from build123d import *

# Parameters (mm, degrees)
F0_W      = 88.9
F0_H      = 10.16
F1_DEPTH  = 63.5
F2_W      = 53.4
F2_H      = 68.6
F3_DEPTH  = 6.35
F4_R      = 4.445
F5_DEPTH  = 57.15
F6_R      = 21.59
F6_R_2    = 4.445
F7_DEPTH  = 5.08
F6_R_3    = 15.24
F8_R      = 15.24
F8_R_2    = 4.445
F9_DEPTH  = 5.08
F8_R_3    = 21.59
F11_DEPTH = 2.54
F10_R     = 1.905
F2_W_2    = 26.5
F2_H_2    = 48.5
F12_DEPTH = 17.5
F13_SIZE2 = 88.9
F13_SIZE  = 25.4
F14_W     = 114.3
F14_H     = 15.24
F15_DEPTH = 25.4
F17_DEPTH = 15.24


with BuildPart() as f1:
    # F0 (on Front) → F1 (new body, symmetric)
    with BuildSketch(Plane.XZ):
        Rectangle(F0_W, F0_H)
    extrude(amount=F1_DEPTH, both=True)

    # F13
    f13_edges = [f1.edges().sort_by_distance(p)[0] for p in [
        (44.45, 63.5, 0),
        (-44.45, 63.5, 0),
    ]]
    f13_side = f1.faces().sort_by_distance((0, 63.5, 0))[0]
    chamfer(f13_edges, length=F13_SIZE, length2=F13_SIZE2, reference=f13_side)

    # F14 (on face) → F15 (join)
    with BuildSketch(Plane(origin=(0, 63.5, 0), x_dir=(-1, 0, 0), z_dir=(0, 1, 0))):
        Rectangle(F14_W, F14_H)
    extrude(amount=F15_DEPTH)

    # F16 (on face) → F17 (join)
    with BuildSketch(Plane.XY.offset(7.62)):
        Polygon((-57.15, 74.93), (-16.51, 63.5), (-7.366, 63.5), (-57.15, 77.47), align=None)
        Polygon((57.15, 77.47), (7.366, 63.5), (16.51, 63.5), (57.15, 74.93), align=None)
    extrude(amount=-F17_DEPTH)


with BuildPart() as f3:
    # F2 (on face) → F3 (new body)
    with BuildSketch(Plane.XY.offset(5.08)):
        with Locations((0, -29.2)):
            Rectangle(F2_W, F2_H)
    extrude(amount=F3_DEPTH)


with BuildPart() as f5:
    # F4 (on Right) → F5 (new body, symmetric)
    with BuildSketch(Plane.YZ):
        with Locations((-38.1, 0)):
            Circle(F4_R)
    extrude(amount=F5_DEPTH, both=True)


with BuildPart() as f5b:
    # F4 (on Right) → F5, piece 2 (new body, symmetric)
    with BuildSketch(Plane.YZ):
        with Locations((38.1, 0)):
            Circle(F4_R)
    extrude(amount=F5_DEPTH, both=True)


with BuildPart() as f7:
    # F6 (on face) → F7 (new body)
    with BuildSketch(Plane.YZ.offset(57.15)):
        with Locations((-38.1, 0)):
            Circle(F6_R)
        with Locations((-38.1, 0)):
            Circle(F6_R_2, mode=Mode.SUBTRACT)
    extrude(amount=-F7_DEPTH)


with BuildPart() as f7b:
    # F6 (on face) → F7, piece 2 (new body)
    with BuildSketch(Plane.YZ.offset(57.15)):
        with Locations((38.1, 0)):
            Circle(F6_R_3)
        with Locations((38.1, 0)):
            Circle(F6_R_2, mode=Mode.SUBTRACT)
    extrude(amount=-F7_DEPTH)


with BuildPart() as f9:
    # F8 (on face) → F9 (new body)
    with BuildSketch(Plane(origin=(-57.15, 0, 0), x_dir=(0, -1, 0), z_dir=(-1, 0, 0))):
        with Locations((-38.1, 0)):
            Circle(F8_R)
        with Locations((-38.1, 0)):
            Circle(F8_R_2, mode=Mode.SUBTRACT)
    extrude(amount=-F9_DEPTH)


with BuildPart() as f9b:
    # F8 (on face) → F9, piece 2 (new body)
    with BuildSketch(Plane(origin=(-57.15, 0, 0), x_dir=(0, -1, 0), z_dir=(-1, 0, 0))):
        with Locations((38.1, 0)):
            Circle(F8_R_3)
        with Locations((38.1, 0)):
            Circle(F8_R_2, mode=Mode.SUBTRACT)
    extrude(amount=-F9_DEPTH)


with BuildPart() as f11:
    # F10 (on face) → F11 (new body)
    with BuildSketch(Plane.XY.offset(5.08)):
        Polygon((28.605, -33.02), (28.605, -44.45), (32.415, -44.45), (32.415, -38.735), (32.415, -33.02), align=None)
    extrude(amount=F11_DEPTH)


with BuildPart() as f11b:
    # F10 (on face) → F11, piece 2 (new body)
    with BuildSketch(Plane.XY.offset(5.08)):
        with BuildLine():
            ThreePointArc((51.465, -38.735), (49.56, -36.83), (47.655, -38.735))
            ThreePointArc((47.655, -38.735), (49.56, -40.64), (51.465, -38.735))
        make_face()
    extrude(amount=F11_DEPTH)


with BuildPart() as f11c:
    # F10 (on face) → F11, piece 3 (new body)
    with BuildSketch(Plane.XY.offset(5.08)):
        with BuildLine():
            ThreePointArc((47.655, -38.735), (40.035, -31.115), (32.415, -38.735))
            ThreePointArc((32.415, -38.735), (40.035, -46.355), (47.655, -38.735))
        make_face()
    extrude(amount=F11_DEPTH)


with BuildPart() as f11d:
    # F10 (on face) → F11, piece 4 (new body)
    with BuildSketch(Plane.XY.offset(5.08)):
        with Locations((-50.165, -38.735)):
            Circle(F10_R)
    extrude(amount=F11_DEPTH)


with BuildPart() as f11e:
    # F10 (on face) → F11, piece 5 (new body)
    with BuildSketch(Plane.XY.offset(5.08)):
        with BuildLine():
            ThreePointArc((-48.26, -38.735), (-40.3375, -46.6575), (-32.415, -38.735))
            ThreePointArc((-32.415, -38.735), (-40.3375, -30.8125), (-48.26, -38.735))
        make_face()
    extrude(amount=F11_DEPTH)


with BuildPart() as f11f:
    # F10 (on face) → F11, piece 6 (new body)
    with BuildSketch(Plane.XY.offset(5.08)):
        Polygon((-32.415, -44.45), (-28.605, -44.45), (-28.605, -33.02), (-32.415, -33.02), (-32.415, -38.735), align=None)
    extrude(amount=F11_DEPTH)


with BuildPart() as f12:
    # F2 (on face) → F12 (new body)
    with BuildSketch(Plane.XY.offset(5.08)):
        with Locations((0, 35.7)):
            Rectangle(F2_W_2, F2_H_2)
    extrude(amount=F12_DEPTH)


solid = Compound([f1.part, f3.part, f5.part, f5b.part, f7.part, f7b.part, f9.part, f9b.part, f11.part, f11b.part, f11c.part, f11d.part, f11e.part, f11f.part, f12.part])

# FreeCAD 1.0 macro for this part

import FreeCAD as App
import Part
import Sketcher
from FreeCAD import Vector
Q = App.Units.Quantity


def edges_at(feature, points):
    """Names of the edges that pass closest to the given points."""
    edges = feature.Shape.Edges
    near = lambda p: min(range(len(edges)), key=lambda i: edges[i].distToShape(Part.Vertex(*p))[0])
    return sorted({f"Edge{near(p) + 1}" for p in points})

doc = App.newDocument("Part")
body = doc.addObject("PartDesign::Body", "Body")

sketch1 = body.newObject("Sketcher::SketchObject", "Sketch")
sketch1.AttachmentSupport = (doc.getObject("XZ_Plane"), [""])
sketch1.MapMode = "FlatFace"
sketch1.addGeometry([
    Part.LineSegment(Vector(-44.45, 5.08, 0), Vector(-44.45, -5.08, 0)),
    Part.LineSegment(Vector(-44.45, -5.08, 0), Vector(44.45, -5.08, 0)),
    Part.LineSegment(Vector(44.45, -5.08, 0), Vector(44.45, 5.08, 0)),
    Part.LineSegment(Vector(44.45, 5.08, 0), Vector(-44.45, 5.08, 0)),
], False)
sketch1.addConstraint([
    Sketcher.Constraint("Coincident", 0, 2, 1, 1),
    Sketcher.Constraint("Coincident", 1, 2, 2, 1),
    Sketcher.Constraint("Coincident", 2, 2, 3, 1),
    Sketcher.Constraint("Coincident", 3, 2, 0, 1),
    Sketcher.Constraint("Vertical", 0),
    Sketcher.Constraint("Horizontal", 1),
    Sketcher.Constraint("Vertical", 2),
    Sketcher.Constraint("Horizontal", 3),
    Sketcher.Constraint("Symmetric", 0, 2, 2, 2, -1, 1),
    Sketcher.Constraint("DistanceX", 1, 1, 1, 2, Q("3.5 in")),
    Sketcher.Constraint("DistanceY", 0, 2, 0, 1, Q("0.4 in")),
])
pad1 = body.newObject("PartDesign::Pad", "Pad")
pad1.Profile = sketch1
pad1.Length = Q("5 in")
pad1.Midplane = True
doc.recompute()

chamfer = body.newObject("PartDesign::Chamfer", "Chamfer")
chamfer.Base = (pad1, edges_at(pad1, [(44.45, 63.5, 0), (-44.45, 63.5, 0)]))
chamfer.ChamferType = "Two distances"
chamfer.Size = Q("1 in")
chamfer.Size2 = Q("3.5 in")
chamfer.FlipDirection = True

sketch2 = body.newObject("Sketcher::SketchObject", "Sketch001")
sketch2.AttachmentSupport = (doc.getObject("XZ_Plane"), [""])
sketch2.MapMode = "FlatFace"
sketch2.AttachmentOffset = App.Placement(Vector(0, 0, -2.5 * 25.4), App.Rotation())
sketch2.addGeometry([
    Part.LineSegment(Vector(57.15, 7.62, 0), Vector(57.15, -7.62, 0)),
    Part.LineSegment(Vector(57.15, -7.62, 0), Vector(-57.15, -7.62, 0)),
    Part.LineSegment(Vector(-57.15, -7.62, 0), Vector(-57.15, 7.62, 0)),
    Part.LineSegment(Vector(-57.15, 7.62, 0), Vector(57.15, 7.62, 0)),
], False)
sketch2.addConstraint([
    Sketcher.Constraint("Coincident", 0, 2, 1, 1),
    Sketcher.Constraint("Coincident", 1, 2, 2, 1),
    Sketcher.Constraint("Coincident", 2, 2, 3, 1),
    Sketcher.Constraint("Coincident", 3, 2, 0, 1),
    Sketcher.Constraint("Vertical", 0),
    Sketcher.Constraint("Horizontal", 1),
    Sketcher.Constraint("Vertical", 2),
    Sketcher.Constraint("Horizontal", 3),
    Sketcher.Constraint("Symmetric", 0, 2, 2, 2, -1, 1),
    Sketcher.Constraint("DistanceX", 1, 2, 1, 1, Q("4.5 in")),
    Sketcher.Constraint("DistanceY", 0, 2, 0, 1, Q("0.6 in")),
])
pad2 = body.newObject("PartDesign::Pad", "Pad001")
pad2.Profile = sketch2
pad2.Length = Q("1 in")
pad2.Reversed = True

sketch3 = body.newObject("Sketcher::SketchObject", "Sketch002")
sketch3.AttachmentSupport = (doc.getObject("XY_Plane"), [""])
sketch3.MapMode = "FlatFace"
sketch3.AttachmentOffset = App.Placement(Vector(0, 0, 0.3 * 25.4), App.Rotation())
sketch3.addGeometry([
    Part.LineSegment(Vector(-57.15, 74.93, 0), Vector(-16.51, 63.5, 0)),
    Part.LineSegment(Vector(-16.51, 63.5, 0), Vector(-7.366, 63.5, 0)),
    Part.LineSegment(Vector(-7.366, 63.5, 0), Vector(-57.15, 77.47, 0)),
    Part.LineSegment(Vector(-57.15, 77.47, 0), Vector(-57.15, 74.93, 0)),
    Part.LineSegment(Vector(57.15, 77.47, 0), Vector(7.366, 63.5, 0)),
    Part.LineSegment(Vector(7.366, 63.5, 0), Vector(16.51, 63.5, 0)),
    Part.LineSegment(Vector(16.51, 63.5, 0), Vector(57.15, 74.93, 0)),
    Part.LineSegment(Vector(57.15, 74.93, 0), Vector(57.15, 77.47, 0)),
], False)
sketch3.addConstraint([
    Sketcher.Constraint("Coincident", 0, 2, 1, 1),
    Sketcher.Constraint("Coincident", 1, 2, 2, 1),
    Sketcher.Constraint("Coincident", 2, 2, 3, 1),
    Sketcher.Constraint("Coincident", 3, 2, 0, 1),
    Sketcher.Constraint("Coincident", 4, 2, 5, 1),
    Sketcher.Constraint("Coincident", 5, 2, 6, 1),
    Sketcher.Constraint("Coincident", 6, 2, 7, 1),
    Sketcher.Constraint("Coincident", 7, 2, 4, 1),
    Sketcher.Constraint("Horizontal", 1),
    Sketcher.Constraint("Vertical", 3),
    Sketcher.Constraint("Horizontal", 5),
    Sketcher.Constraint("Vertical", 7),
    Sketcher.Constraint("Symmetric", 1, 2, 4, 2, -2),
    Sketcher.Constraint("Symmetric", 3, 2, 6, 2, -2),
    Sketcher.Constraint("Horizontal", 2, 2, 7, 2),
    Sketcher.Constraint("Equal", 1, 5),
    Sketcher.Constraint("DistanceY", 3, 2, 3, 1, Q("0.1 in")),
    Sketcher.Constraint("DistanceX", 1, 1, 1, 2, Q("0.36 in")),
    Sketcher.Constraint("DistanceY", -1, 1, 0, 2, Q("2.5 in")),
    Sketcher.Constraint("DistanceX", 2, 2, 0, 2, Q("1.6 in")),
    Sketcher.Constraint("DistanceX", 0, 2, 5, 2, Q("1.3 in")),
    Sketcher.Constraint("DistanceY", -1, 1, 2, 2, Q("3.05 in")),
])
pad3 = body.newObject("PartDesign::Pad", "Pad002")
pad3.Profile = sketch3
pad3.Length = Q("0.6 in")
pad3.Reversed = True
body2 = doc.addObject("PartDesign::Body", "Body001")

sketch4 = body2.newObject("Sketcher::SketchObject", "Sketch003")
sketch4.AttachmentSupport = (doc.getObject("XY_Plane001"), [""])
sketch4.MapMode = "FlatFace"
sketch4.AttachmentOffset = App.Placement(Vector(0, 0, 0.2 * 25.4), App.Rotation())
sketch4.addGeometry([
    Part.LineSegment(Vector(-26.7, 5.1, 0), Vector(-26.7, -63.5, 0)),
    Part.LineSegment(Vector(-26.7, -63.5, 0), Vector(26.7, -63.5, 0)),
    Part.LineSegment(Vector(26.7, -63.5, 0), Vector(26.7, 5.1, 0)),
    Part.LineSegment(Vector(26.7, 5.1, 0), Vector(-26.7, 5.1, 0)),
], False)
sketch4.addConstraint([
    Sketcher.Constraint("Coincident", 0, 2, 1, 1),
    Sketcher.Constraint("Coincident", 1, 2, 2, 1),
    Sketcher.Constraint("Coincident", 2, 2, 3, 1),
    Sketcher.Constraint("Coincident", 3, 2, 0, 1),
    Sketcher.Constraint("Vertical", 0),
    Sketcher.Constraint("Horizontal", 1),
    Sketcher.Constraint("Vertical", 2),
    Sketcher.Constraint("Horizontal", 3),
    Sketcher.Constraint("DistanceY", 0, 2, -1, 1, Q("2.5 in")),
    Sketcher.Constraint("DistanceX", 1, 1, 1, 2, Q("53.4 mm")),
    Sketcher.Constraint("DistanceY", 0, 2, 0, 1, Q("68.6 mm")),
    Sketcher.Constraint("DistanceX", 0, 2, -1, 1, Q("26.7 mm")),
])
pad4 = body2.newObject("PartDesign::Pad", "Pad003")
pad4.Profile = sketch4
pad4.Length = Q("0.25 in")
body3 = doc.addObject("PartDesign::Body", "Body002")

sketch5 = body3.newObject("Sketcher::SketchObject", "Sketch004")
sketch5.AttachmentSupport = (doc.getObject("YZ_Plane002"), [""])
sketch5.MapMode = "FlatFace"
sketch5.addGeometry(Part.Circle(Vector(-38.1, 0, 0), Vector(0, 0, 1), 4.445), False)
sketch5.addConstraint([
    Sketcher.Constraint("PointOnObject", 0, 3, -1),
    Sketcher.Constraint("Diameter", 0, Q("0.35 in")),
    Sketcher.Constraint("DistanceX", 0, 3, -1, 1, Q("1.5 in")),
])
pad5 = body3.newObject("PartDesign::Pad", "Pad004")
pad5.Profile = sketch5
pad5.Length = Q("4.5 in")
pad5.Midplane = True
body4 = doc.addObject("PartDesign::Body", "Body003")

sketch6 = body4.newObject("Sketcher::SketchObject", "Sketch005")
sketch6.AttachmentSupport = (doc.getObject("YZ_Plane003"), [""])
sketch6.MapMode = "FlatFace"
sketch6.addGeometry(Part.Circle(Vector(38.1, 0, 0), Vector(0, 0, 1), 4.445), False)
sketch6.addConstraint([
    Sketcher.Constraint("PointOnObject", 0, 3, -1),
    Sketcher.Constraint("Diameter", 0, Q("0.35 in")),
    Sketcher.Constraint("DistanceX", -1, 1, 0, 3, Q("1.5 in")),
])
pad6 = body4.newObject("PartDesign::Pad", "Pad005")
pad6.Profile = sketch6
pad6.Length = Q("4.5 in")
pad6.Midplane = True
body5 = doc.addObject("PartDesign::Body", "Body004")

sketch7 = body5.newObject("Sketcher::SketchObject", "Sketch006")
sketch7.AttachmentSupport = (doc.getObject("YZ_Plane004"), [""])
sketch7.MapMode = "FlatFace"
sketch7.AttachmentOffset = App.Placement(Vector(0, 0, 2.25 * 25.4), App.Rotation())
sketch7.addGeometry([
    Part.Circle(Vector(-38.1, 0, 0), Vector(0, 0, 1), 21.59),
    Part.Circle(Vector(-38.1, 0, 0), Vector(0, 0, 1), 4.445),
], False)
sketch7.addConstraint([
    Sketcher.Constraint("Coincident", 1, 3, 0, 3),
    Sketcher.Constraint("PointOnObject", 0, 3, -1),
    Sketcher.Constraint("Diameter", 0, Q("1.7 in")),
    Sketcher.Constraint("Diameter", 1, Q("0.35 in")),
    Sketcher.Constraint("DistanceX", 0, 3, -1, 1, Q("1.5 in")),
])
pad7 = body5.newObject("PartDesign::Pad", "Pad006")
pad7.Profile = sketch7
pad7.Length = Q("0.2 in")
pad7.Reversed = True
body6 = doc.addObject("PartDesign::Body", "Body005")

sketch8 = body6.newObject("Sketcher::SketchObject", "Sketch007")
sketch8.AttachmentSupport = (doc.getObject("YZ_Plane005"), [""])
sketch8.MapMode = "FlatFace"
sketch8.AttachmentOffset = App.Placement(Vector(0, 0, 2.25 * 25.4), App.Rotation())
sketch8.addGeometry([
    Part.Circle(Vector(38.1, 0, 0), Vector(0, 0, 1), 15.24),
    Part.Circle(Vector(38.1, 0, 0), Vector(0, 0, 1), 4.445),
], False)
sketch8.addConstraint([
    Sketcher.Constraint("Coincident", 1, 3, 0, 3),
    Sketcher.Constraint("PointOnObject", 0, 3, -1),
    Sketcher.Constraint("Diameter", 0, Q("1.2 in")),
    Sketcher.Constraint("Diameter", 1, Q("0.35 in")),
    Sketcher.Constraint("DistanceX", -1, 1, 0, 3, Q("1.5 in")),
])
pad8 = body6.newObject("PartDesign::Pad", "Pad007")
pad8.Profile = sketch8
pad8.Length = Q("0.2 in")
pad8.Reversed = True
body7 = doc.addObject("PartDesign::Body", "Body006")

sketch9 = body7.newObject("Sketcher::SketchObject", "Sketch008")
sketch9.AttachmentSupport = (doc.getObject("YZ_Plane006"), [""])
sketch9.MapMode = "FlatFace"
sketch9.AttachmentOffset = App.Placement(Vector(0, 0, -2.25 * 25.4), App.Rotation())
sketch9.addGeometry([
    Part.Circle(Vector(38.1, 0, 0), Vector(0, 0, 1), 15.24),
    Part.Circle(Vector(38.1, 0, 0), Vector(0, 0, 1), 4.445),
], False)
sketch9.addConstraint([
    Sketcher.Constraint("Coincident", 1, 3, 0, 3),
    Sketcher.Constraint("PointOnObject", 0, 3, -1),
    Sketcher.Constraint("Diameter", 0, Q("1.2 in")),
    Sketcher.Constraint("Diameter", 1, Q("0.35 in")),
    Sketcher.Constraint("DistanceX", -1, 1, 0, 3, Q("1.5 in")),
])
pad9 = body7.newObject("PartDesign::Pad", "Pad008")
pad9.Profile = sketch9
pad9.Length = Q("0.2 in")
body8 = doc.addObject("PartDesign::Body", "Body007")

sketch10 = body8.newObject("Sketcher::SketchObject", "Sketch009")
sketch10.AttachmentSupport = (doc.getObject("YZ_Plane007"), [""])
sketch10.MapMode = "FlatFace"
sketch10.AttachmentOffset = App.Placement(Vector(0, 0, -2.25 * 25.4), App.Rotation())
sketch10.addGeometry([
    Part.Circle(Vector(-38.1, 0, 0), Vector(0, 0, 1), 21.59),
    Part.Circle(Vector(-38.1, 0, 0), Vector(0, 0, 1), 4.445),
], False)
sketch10.addConstraint([
    Sketcher.Constraint("Coincident", 1, 3, 0, 3),
    Sketcher.Constraint("PointOnObject", 0, 3, -1),
    Sketcher.Constraint("Diameter", 0, Q("1.7 in")),
    Sketcher.Constraint("Diameter", 1, Q("0.35 in")),
    Sketcher.Constraint("DistanceX", 0, 3, -1, 1, Q("1.5 in")),
])
pad10 = body8.newObject("PartDesign::Pad", "Pad009")
pad10.Profile = sketch10
pad10.Length = Q("0.2 in")
body9 = doc.addObject("PartDesign::Body", "Body008")

sketch11 = body9.newObject("Sketcher::SketchObject", "Sketch010")
sketch11.AttachmentSupport = (doc.getObject("XY_Plane008"), [""])
sketch11.MapMode = "FlatFace"
sketch11.AttachmentOffset = App.Placement(Vector(0, 0, 0.2 * 25.4), App.Rotation())
sketch11.addGeometry([
    Part.LineSegment(Vector(28.605, -33.02, 0), Vector(28.605, -44.45, 0)),
    Part.LineSegment(Vector(28.605, -44.45, 0), Vector(32.415, -44.45, 0)),
    Part.LineSegment(Vector(32.415, -44.45, 0), Vector(32.415, -33.02, 0)),
    Part.LineSegment(Vector(32.415, -33.02, 0), Vector(28.605, -33.02, 0)),
], False)
sketch11.addConstraint([
    Sketcher.Constraint("Coincident", 0, 2, 1, 1),
    Sketcher.Constraint("Coincident", 1, 2, 2, 1),
    Sketcher.Constraint("Coincident", 2, 2, 3, 1),
    Sketcher.Constraint("Coincident", 3, 2, 0, 1),
    Sketcher.Constraint("Vertical", 0),
    Sketcher.Constraint("Horizontal", 1),
    Sketcher.Constraint("Vertical", 2),
    Sketcher.Constraint("Horizontal", 3),
    Sketcher.Constraint("DistanceX", 1, 1, 1, 2, Q("0.15 in")),
    Sketcher.Constraint("DistanceY", 0, 2, 0, 1, Q("0.45 in")),
    Sketcher.Constraint("DistanceY", 2, 2, -1, 1, Q("1.3 in")),
    Sketcher.Constraint("DistanceX", -1, 1, 0, 2, Q("28.605 mm")),
])
pad11 = body9.newObject("PartDesign::Pad", "Pad010")
pad11.Profile = sketch11
pad11.Length = Q("0.1 in")
body10 = doc.addObject("PartDesign::Body", "Body009")

sketch12 = body10.newObject("Sketcher::SketchObject", "Sketch011")
sketch12.AttachmentSupport = (doc.getObject("XY_Plane009"), [""])
sketch12.MapMode = "FlatFace"
sketch12.AttachmentOffset = App.Placement(Vector(0, 0, 0.2 * 25.4), App.Rotation())
sketch12.addGeometry(Part.Circle(Vector(49.56, -38.735, 0), Vector(0, 0, 1), 1.905), False)
sketch12.addConstraint([
    Sketcher.Constraint("Diameter", 0, Q("0.15 in")),
    Sketcher.Constraint("DistanceY", 0, 3, -1, 1, Q("1.525 in")),
    Sketcher.Constraint("DistanceX", -1, 1, 0, 3, Q("49.56 mm")),
])
pad12 = body10.newObject("PartDesign::Pad", "Pad011")
pad12.Profile = sketch12
pad12.Length = Q("0.1 in")
body11 = doc.addObject("PartDesign::Body", "Body010")

sketch13 = body11.newObject("Sketcher::SketchObject", "Sketch012")
sketch13.AttachmentSupport = (doc.getObject("XY_Plane010"), [""])
sketch13.MapMode = "FlatFace"
sketch13.AttachmentOffset = App.Placement(Vector(0, 0, 0.2 * 25.4), App.Rotation())
sketch13.addGeometry(Part.Circle(Vector(40.035, -38.735, 0), Vector(0, 0, 1), 7.62), False)
sketch13.addConstraint([
    Sketcher.Constraint("Diameter", 0, Q("0.6 in")),
    Sketcher.Constraint("DistanceY", 0, 3, -1, 1, Q("1.525 in")),
    Sketcher.Constraint("DistanceX", -1, 1, 0, 3, Q("40.035 mm")),
])
pad13 = body11.newObject("PartDesign::Pad", "Pad012")
pad13.Profile = sketch13
pad13.Length = Q("0.1 in")
body12 = doc.addObject("PartDesign::Body", "Body011")

sketch14 = body12.newObject("Sketcher::SketchObject", "Sketch013")
sketch14.AttachmentSupport = (doc.getObject("XY_Plane011"), [""])
sketch14.MapMode = "FlatFace"
sketch14.AttachmentOffset = App.Placement(Vector(0, 0, 0.2 * 25.4), App.Rotation())
sketch14.addGeometry(Part.Circle(Vector(-50.165, -38.735, 0), Vector(0, 0, 1), 1.905), False)
sketch14.addConstraint([
    Sketcher.Constraint("Diameter", 0, Q("0.15 in")),
    Sketcher.Constraint("DistanceX", 0, 3, -1, 1, Q("1.975 in")),
    Sketcher.Constraint("DistanceY", 0, 3, -1, 1, Q("1.525 in")),
])
pad14 = body12.newObject("PartDesign::Pad", "Pad013")
pad14.Profile = sketch14
pad14.Length = Q("0.1 in")
body13 = doc.addObject("PartDesign::Body", "Body012")

sketch15 = body13.newObject("Sketcher::SketchObject", "Sketch014")
sketch15.AttachmentSupport = (doc.getObject("XY_Plane012"), [""])
sketch15.MapMode = "FlatFace"
sketch15.AttachmentOffset = App.Placement(Vector(0, 0, 0.2 * 25.4), App.Rotation())
sketch15.addGeometry(Part.Circle(Vector(-40.3375, -38.735, 0), Vector(0, 0, 1), 7.9225), False)
sketch15.addConstraint([
    Sketcher.Constraint("Diameter", 0, Q("15.845 mm")),
    Sketcher.Constraint("DistanceY", 0, 3, -1, 1, Q("1.525 in")),
    Sketcher.Constraint("DistanceX", 0, 3, -1, 1, Q("40.3375 mm")),
])
pad15 = body13.newObject("PartDesign::Pad", "Pad014")
pad15.Profile = sketch15
pad15.Length = Q("0.1 in")
body14 = doc.addObject("PartDesign::Body", "Body013")

sketch16 = body14.newObject("Sketcher::SketchObject", "Sketch015")
sketch16.AttachmentSupport = (doc.getObject("XY_Plane013"), [""])
sketch16.MapMode = "FlatFace"
sketch16.AttachmentOffset = App.Placement(Vector(0, 0, 0.2 * 25.4), App.Rotation())
sketch16.addGeometry([
    Part.LineSegment(Vector(-32.415, -44.45, 0), Vector(-28.605, -44.45, 0)),
    Part.LineSegment(Vector(-28.605, -44.45, 0), Vector(-28.605, -33.02, 0)),
    Part.LineSegment(Vector(-28.605, -33.02, 0), Vector(-32.415, -33.02, 0)),
    Part.LineSegment(Vector(-32.415, -33.02, 0), Vector(-32.415, -44.45, 0)),
], False)
sketch16.addConstraint([
    Sketcher.Constraint("Coincident", 0, 2, 1, 1),
    Sketcher.Constraint("Coincident", 1, 2, 2, 1),
    Sketcher.Constraint("Coincident", 2, 2, 3, 1),
    Sketcher.Constraint("Coincident", 3, 2, 0, 1),
    Sketcher.Constraint("Horizontal", 0),
    Sketcher.Constraint("Vertical", 1),
    Sketcher.Constraint("Horizontal", 2),
    Sketcher.Constraint("Vertical", 3),
    Sketcher.Constraint("DistanceX", 0, 1, 0, 2, Q("0.15 in")),
    Sketcher.Constraint("DistanceY", 1, 1, 1, 2, Q("0.45 in")),
    Sketcher.Constraint("DistanceY", 1, 2, -1, 1, Q("1.3 in")),
    Sketcher.Constraint("DistanceX", 0, 2, -1, 1, Q("28.605 mm")),
])
pad16 = body14.newObject("PartDesign::Pad", "Pad015")
pad16.Profile = sketch16
pad16.Length = Q("0.1 in")
body15 = doc.addObject("PartDesign::Body", "Body014")

sketch17 = body15.newObject("Sketcher::SketchObject", "Sketch016")
sketch17.AttachmentSupport = (doc.getObject("XY_Plane014"), [""])
sketch17.MapMode = "FlatFace"
sketch17.AttachmentOffset = App.Placement(Vector(0, 0, 0.2 * 25.4), App.Rotation())
sketch17.addGeometry([
    Part.LineSegment(Vector(-13.25, 59.95, 0), Vector(-13.25, 11.45, 0)),
    Part.LineSegment(Vector(-13.25, 11.45, 0), Vector(13.25, 11.45, 0)),
    Part.LineSegment(Vector(13.25, 11.45, 0), Vector(13.25, 59.95, 0)),
    Part.LineSegment(Vector(13.25, 59.95, 0), Vector(-13.25, 59.95, 0)),
], False)
sketch17.addConstraint([
    Sketcher.Constraint("Coincident", 0, 2, 1, 1),
    Sketcher.Constraint("Coincident", 1, 2, 2, 1),
    Sketcher.Constraint("Coincident", 2, 2, 3, 1),
    Sketcher.Constraint("Coincident", 3, 2, 0, 1),
    Sketcher.Constraint("Vertical", 0),
    Sketcher.Constraint("Horizontal", 1),
    Sketcher.Constraint("Vertical", 2),
    Sketcher.Constraint("Horizontal", 3),
    Sketcher.Constraint("DistanceX", 1, 1, 1, 2, Q("26.5 mm")),
    Sketcher.Constraint("DistanceY", 0, 2, 0, 1, Q("48.5 mm")),
    Sketcher.Constraint("DistanceX", 0, 2, -1, 1, Q("13.25 mm")),
    Sketcher.Constraint("DistanceY", -1, 1, 0, 2, Q("11.45 mm")),
])
pad17 = body15.newObject("PartDesign::Pad", "Pad016")
pad17.Profile = sketch17
pad17.Length = 17.5

doc.recompute()
